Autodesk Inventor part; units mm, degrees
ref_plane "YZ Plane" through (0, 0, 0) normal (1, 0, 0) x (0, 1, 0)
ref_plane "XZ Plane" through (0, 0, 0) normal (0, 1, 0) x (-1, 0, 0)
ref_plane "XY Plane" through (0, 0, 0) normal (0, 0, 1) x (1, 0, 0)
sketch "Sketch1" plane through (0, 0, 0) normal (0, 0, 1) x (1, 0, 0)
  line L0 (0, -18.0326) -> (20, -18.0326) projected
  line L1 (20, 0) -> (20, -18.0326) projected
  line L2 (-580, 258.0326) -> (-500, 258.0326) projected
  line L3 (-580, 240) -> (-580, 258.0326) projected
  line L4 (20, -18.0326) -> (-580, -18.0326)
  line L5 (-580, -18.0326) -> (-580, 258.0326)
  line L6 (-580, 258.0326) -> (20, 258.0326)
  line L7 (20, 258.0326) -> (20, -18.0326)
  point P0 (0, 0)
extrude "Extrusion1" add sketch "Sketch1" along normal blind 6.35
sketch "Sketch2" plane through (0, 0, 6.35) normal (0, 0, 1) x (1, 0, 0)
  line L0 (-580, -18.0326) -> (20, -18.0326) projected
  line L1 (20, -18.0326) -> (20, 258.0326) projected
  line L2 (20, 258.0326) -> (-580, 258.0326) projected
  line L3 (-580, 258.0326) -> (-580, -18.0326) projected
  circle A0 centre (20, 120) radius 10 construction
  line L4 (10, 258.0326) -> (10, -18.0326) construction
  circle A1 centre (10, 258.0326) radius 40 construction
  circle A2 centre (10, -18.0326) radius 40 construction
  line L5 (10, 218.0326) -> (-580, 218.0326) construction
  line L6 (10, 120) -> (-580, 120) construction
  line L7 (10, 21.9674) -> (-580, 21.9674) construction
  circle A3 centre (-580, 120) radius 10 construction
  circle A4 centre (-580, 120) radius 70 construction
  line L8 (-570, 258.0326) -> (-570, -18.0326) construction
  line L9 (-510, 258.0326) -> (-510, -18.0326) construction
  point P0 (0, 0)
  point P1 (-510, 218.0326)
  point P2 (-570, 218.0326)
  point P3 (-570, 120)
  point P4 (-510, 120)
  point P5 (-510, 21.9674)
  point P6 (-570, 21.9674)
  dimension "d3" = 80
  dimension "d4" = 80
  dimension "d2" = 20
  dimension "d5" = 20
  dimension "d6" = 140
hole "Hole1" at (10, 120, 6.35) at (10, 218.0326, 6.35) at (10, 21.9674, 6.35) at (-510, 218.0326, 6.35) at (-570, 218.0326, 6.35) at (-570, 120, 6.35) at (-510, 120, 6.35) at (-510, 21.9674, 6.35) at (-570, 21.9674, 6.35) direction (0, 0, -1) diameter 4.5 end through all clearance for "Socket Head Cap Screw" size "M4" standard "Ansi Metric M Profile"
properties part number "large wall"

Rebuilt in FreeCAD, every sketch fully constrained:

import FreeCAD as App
import Part
import Sketcher
from FreeCAD import Vector

doc = App.newDocument("Part")
body = doc.addObject("PartDesign::Body", "Body")

# Sketch on XY plane
sketch1 = body.newObject("Sketcher::SketchObject", "Sketch")
sketch1.AttachmentSupport = (doc.getObject("XY_Plane"), [""])
sketch1.MapMode = "FlatFace"
sketch1.addGeometry(Part.LineSegment(Vector(-580, -18.0326, 0), Vector(20, -18.0326, 0)), False)
sketch1.addGeometry(Part.LineSegment(Vector(20, -18.0326, 0), Vector(20, 258.0326, 0)), False)
sketch1.addGeometry(Part.LineSegment(Vector(20, 258.0326, 0), Vector(-580, 258.0326, 0)), False)
sketch1.addGeometry(Part.LineSegment(Vector(-580, 258.0326, 0), Vector(-580, -18.0326, 0)), False)
sketch1.addConstraint(Sketcher.Constraint("Coincident", 0, 2, 1, 1))
sketch1.addConstraint(Sketcher.Constraint("Coincident", 1, 2, 2, 1))
sketch1.addConstraint(Sketcher.Constraint("Coincident", 2, 2, 3, 1))
sketch1.addConstraint(Sketcher.Constraint("Coincident", 3, 2, 0, 1))
sketch1.addConstraint(Sketcher.Constraint("Horizontal", 0))
sketch1.addConstraint(Sketcher.Constraint("Vertical", 1))
sketch1.addConstraint(Sketcher.Constraint("Horizontal", 2))
sketch1.addConstraint(Sketcher.Constraint("Vertical", 3))
sketch1.addConstraint(Sketcher.Constraint("DistanceX", 0, 1, 0, 2, 600.0))
sketch1.addConstraint(Sketcher.Constraint("DistanceX", -1, 1, 0, 2, 20.0))
sketch1.addConstraint(Sketcher.Constraint("DistanceY", 1, 1, 1, 2, 276.0652))
sketch1.addConstraint(Sketcher.Constraint("DistanceY", 0, 2, -1, 1, 18.0326))
pad1 = body.newObject("PartDesign::Pad", "Pad")
pad1.Profile = sketch1
pad1.Length = 6.35

# Sketch on XY plane
sketch2 = body.newObject("Sketcher::SketchObject", "Sketch001")
sketch2.AttachmentSupport = (doc.getObject("XY_Plane"), [""])
sketch2.MapMode = "FlatFace"
sketch2.AttachmentOffset = App.Placement(Vector(0, 0, 6.35), App.Rotation())
sketch2.addGeometry(Part.Circle(Vector(10, 120, 0), Vector(0, 0, 1), 2.25), False)
sketch2.addGeometry(Part.Circle(Vector(10, 218.0326, 0), Vector(0, 0, 1), 2.25), False)
sketch2.addGeometry(Part.Circle(Vector(10, 21.9674, 0), Vector(0, 0, 1), 2.25), False)
sketch2.addGeometry(Part.Circle(Vector(-510, 218.0326, 0), Vector(0, 0, 1), 2.25), False)
sketch2.addGeometry(Part.Circle(Vector(-570, 218.0326, 0), Vector(0, 0, 1), 2.25), False)
sketch2.addGeometry(Part.Circle(Vector(-570, 120, 0), Vector(0, 0, 1), 2.25), False)
sketch2.addGeometry(Part.Circle(Vector(-510, 120, 0), Vector(0, 0, 1), 2.25), False)
sketch2.addGeometry(Part.Circle(Vector(-510, 21.9674, 0), Vector(0, 0, 1), 2.25), False)
sketch2.addGeometry(Part.Circle(Vector(-570, 21.9674, 0), Vector(0, 0, 1), 2.25), False)
sketch2.addConstraint(Sketcher.Constraint("Equal", 0, 1))
sketch2.addConstraint(Sketcher.Constraint("Equal", 1, 2))
sketch2.addConstraint(Sketcher.Constraint("Equal", 2, 3))
sketch2.addConstraint(Sketcher.Constraint("Equal", 3, 4))
sketch2.addConstraint(Sketcher.Constraint("Equal", 4, 5))
sketch2.addConstraint(Sketcher.Constraint("Equal", 5, 6))
sketch2.addConstraint(Sketcher.Constraint("Equal", 6, 7))
sketch2.addConstraint(Sketcher.Constraint("Equal", 7, 8))
sketch2.addConstraint(Sketcher.Constraint("Horizontal", 1, 3, 3, 3))
sketch2.addConstraint(Sketcher.Constraint("Horizontal", 3, 3, 4, 3))
sketch2.addConstraint(Sketcher.Constraint("Horizontal", 0, 3, 5, 3))
sketch2.addConstraint(Sketcher.Constraint("Horizontal", 5, 3, 6, 3))
sketch2.addConstraint(Sketcher.Constraint("Horizontal", 2, 3, 7, 3))
sketch2.addConstraint(Sketcher.Constraint("Horizontal", 7, 3, 8, 3))
sketch2.addConstraint(Sketcher.Constraint("Vertical", 0, 3, 1, 3))
sketch2.addConstraint(Sketcher.Constraint("Vertical", 1, 3, 2, 3))
sketch2.addConstraint(Sketcher.Constraint("Vertical", 4, 3, 5, 3))
sketch2.addConstraint(Sketcher.Constraint("Vertical", 3, 3, 6, 3))
sketch2.addConstraint(Sketcher.Constraint("Vertical", 6, 3, 7, 3))
sketch2.addConstraint(Sketcher.Constraint("Vertical", 5, 3, 8, 3))
sketch2.addConstraint(Sketcher.Constraint("Diameter", 0, 4.5))
sketch2.addConstraint(Sketcher.Constraint("DistanceX", -1, 1, 0, 3, 10.0))
sketch2.addConstraint(Sketcher.Constraint("DistanceY", -1, 1, 0, 3, 120.0))
sketch2.addConstraint(Sketcher.Constraint("DistanceX", 3, 3, -1, 1, 510.0))
sketch2.addConstraint(Sketcher.Constraint("DistanceX", 4, 3, -1, 1, 570.0))
sketch2.addConstraint(Sketcher.Constraint("DistanceY", -1, 1, 1, 3, 218.0326))
sketch2.addConstraint(Sketcher.Constraint("DistanceY", -1, 1, 2, 3, 21.9674))
doc.recompute()
hole = body.newObject("PartDesign::Hole", "Hole")
hole.Profile = sketch2
hole.ThreadType = "None"
hole.Diameter = 4.5
hole.DepthType = "ThroughAll"

doc.recompute()
